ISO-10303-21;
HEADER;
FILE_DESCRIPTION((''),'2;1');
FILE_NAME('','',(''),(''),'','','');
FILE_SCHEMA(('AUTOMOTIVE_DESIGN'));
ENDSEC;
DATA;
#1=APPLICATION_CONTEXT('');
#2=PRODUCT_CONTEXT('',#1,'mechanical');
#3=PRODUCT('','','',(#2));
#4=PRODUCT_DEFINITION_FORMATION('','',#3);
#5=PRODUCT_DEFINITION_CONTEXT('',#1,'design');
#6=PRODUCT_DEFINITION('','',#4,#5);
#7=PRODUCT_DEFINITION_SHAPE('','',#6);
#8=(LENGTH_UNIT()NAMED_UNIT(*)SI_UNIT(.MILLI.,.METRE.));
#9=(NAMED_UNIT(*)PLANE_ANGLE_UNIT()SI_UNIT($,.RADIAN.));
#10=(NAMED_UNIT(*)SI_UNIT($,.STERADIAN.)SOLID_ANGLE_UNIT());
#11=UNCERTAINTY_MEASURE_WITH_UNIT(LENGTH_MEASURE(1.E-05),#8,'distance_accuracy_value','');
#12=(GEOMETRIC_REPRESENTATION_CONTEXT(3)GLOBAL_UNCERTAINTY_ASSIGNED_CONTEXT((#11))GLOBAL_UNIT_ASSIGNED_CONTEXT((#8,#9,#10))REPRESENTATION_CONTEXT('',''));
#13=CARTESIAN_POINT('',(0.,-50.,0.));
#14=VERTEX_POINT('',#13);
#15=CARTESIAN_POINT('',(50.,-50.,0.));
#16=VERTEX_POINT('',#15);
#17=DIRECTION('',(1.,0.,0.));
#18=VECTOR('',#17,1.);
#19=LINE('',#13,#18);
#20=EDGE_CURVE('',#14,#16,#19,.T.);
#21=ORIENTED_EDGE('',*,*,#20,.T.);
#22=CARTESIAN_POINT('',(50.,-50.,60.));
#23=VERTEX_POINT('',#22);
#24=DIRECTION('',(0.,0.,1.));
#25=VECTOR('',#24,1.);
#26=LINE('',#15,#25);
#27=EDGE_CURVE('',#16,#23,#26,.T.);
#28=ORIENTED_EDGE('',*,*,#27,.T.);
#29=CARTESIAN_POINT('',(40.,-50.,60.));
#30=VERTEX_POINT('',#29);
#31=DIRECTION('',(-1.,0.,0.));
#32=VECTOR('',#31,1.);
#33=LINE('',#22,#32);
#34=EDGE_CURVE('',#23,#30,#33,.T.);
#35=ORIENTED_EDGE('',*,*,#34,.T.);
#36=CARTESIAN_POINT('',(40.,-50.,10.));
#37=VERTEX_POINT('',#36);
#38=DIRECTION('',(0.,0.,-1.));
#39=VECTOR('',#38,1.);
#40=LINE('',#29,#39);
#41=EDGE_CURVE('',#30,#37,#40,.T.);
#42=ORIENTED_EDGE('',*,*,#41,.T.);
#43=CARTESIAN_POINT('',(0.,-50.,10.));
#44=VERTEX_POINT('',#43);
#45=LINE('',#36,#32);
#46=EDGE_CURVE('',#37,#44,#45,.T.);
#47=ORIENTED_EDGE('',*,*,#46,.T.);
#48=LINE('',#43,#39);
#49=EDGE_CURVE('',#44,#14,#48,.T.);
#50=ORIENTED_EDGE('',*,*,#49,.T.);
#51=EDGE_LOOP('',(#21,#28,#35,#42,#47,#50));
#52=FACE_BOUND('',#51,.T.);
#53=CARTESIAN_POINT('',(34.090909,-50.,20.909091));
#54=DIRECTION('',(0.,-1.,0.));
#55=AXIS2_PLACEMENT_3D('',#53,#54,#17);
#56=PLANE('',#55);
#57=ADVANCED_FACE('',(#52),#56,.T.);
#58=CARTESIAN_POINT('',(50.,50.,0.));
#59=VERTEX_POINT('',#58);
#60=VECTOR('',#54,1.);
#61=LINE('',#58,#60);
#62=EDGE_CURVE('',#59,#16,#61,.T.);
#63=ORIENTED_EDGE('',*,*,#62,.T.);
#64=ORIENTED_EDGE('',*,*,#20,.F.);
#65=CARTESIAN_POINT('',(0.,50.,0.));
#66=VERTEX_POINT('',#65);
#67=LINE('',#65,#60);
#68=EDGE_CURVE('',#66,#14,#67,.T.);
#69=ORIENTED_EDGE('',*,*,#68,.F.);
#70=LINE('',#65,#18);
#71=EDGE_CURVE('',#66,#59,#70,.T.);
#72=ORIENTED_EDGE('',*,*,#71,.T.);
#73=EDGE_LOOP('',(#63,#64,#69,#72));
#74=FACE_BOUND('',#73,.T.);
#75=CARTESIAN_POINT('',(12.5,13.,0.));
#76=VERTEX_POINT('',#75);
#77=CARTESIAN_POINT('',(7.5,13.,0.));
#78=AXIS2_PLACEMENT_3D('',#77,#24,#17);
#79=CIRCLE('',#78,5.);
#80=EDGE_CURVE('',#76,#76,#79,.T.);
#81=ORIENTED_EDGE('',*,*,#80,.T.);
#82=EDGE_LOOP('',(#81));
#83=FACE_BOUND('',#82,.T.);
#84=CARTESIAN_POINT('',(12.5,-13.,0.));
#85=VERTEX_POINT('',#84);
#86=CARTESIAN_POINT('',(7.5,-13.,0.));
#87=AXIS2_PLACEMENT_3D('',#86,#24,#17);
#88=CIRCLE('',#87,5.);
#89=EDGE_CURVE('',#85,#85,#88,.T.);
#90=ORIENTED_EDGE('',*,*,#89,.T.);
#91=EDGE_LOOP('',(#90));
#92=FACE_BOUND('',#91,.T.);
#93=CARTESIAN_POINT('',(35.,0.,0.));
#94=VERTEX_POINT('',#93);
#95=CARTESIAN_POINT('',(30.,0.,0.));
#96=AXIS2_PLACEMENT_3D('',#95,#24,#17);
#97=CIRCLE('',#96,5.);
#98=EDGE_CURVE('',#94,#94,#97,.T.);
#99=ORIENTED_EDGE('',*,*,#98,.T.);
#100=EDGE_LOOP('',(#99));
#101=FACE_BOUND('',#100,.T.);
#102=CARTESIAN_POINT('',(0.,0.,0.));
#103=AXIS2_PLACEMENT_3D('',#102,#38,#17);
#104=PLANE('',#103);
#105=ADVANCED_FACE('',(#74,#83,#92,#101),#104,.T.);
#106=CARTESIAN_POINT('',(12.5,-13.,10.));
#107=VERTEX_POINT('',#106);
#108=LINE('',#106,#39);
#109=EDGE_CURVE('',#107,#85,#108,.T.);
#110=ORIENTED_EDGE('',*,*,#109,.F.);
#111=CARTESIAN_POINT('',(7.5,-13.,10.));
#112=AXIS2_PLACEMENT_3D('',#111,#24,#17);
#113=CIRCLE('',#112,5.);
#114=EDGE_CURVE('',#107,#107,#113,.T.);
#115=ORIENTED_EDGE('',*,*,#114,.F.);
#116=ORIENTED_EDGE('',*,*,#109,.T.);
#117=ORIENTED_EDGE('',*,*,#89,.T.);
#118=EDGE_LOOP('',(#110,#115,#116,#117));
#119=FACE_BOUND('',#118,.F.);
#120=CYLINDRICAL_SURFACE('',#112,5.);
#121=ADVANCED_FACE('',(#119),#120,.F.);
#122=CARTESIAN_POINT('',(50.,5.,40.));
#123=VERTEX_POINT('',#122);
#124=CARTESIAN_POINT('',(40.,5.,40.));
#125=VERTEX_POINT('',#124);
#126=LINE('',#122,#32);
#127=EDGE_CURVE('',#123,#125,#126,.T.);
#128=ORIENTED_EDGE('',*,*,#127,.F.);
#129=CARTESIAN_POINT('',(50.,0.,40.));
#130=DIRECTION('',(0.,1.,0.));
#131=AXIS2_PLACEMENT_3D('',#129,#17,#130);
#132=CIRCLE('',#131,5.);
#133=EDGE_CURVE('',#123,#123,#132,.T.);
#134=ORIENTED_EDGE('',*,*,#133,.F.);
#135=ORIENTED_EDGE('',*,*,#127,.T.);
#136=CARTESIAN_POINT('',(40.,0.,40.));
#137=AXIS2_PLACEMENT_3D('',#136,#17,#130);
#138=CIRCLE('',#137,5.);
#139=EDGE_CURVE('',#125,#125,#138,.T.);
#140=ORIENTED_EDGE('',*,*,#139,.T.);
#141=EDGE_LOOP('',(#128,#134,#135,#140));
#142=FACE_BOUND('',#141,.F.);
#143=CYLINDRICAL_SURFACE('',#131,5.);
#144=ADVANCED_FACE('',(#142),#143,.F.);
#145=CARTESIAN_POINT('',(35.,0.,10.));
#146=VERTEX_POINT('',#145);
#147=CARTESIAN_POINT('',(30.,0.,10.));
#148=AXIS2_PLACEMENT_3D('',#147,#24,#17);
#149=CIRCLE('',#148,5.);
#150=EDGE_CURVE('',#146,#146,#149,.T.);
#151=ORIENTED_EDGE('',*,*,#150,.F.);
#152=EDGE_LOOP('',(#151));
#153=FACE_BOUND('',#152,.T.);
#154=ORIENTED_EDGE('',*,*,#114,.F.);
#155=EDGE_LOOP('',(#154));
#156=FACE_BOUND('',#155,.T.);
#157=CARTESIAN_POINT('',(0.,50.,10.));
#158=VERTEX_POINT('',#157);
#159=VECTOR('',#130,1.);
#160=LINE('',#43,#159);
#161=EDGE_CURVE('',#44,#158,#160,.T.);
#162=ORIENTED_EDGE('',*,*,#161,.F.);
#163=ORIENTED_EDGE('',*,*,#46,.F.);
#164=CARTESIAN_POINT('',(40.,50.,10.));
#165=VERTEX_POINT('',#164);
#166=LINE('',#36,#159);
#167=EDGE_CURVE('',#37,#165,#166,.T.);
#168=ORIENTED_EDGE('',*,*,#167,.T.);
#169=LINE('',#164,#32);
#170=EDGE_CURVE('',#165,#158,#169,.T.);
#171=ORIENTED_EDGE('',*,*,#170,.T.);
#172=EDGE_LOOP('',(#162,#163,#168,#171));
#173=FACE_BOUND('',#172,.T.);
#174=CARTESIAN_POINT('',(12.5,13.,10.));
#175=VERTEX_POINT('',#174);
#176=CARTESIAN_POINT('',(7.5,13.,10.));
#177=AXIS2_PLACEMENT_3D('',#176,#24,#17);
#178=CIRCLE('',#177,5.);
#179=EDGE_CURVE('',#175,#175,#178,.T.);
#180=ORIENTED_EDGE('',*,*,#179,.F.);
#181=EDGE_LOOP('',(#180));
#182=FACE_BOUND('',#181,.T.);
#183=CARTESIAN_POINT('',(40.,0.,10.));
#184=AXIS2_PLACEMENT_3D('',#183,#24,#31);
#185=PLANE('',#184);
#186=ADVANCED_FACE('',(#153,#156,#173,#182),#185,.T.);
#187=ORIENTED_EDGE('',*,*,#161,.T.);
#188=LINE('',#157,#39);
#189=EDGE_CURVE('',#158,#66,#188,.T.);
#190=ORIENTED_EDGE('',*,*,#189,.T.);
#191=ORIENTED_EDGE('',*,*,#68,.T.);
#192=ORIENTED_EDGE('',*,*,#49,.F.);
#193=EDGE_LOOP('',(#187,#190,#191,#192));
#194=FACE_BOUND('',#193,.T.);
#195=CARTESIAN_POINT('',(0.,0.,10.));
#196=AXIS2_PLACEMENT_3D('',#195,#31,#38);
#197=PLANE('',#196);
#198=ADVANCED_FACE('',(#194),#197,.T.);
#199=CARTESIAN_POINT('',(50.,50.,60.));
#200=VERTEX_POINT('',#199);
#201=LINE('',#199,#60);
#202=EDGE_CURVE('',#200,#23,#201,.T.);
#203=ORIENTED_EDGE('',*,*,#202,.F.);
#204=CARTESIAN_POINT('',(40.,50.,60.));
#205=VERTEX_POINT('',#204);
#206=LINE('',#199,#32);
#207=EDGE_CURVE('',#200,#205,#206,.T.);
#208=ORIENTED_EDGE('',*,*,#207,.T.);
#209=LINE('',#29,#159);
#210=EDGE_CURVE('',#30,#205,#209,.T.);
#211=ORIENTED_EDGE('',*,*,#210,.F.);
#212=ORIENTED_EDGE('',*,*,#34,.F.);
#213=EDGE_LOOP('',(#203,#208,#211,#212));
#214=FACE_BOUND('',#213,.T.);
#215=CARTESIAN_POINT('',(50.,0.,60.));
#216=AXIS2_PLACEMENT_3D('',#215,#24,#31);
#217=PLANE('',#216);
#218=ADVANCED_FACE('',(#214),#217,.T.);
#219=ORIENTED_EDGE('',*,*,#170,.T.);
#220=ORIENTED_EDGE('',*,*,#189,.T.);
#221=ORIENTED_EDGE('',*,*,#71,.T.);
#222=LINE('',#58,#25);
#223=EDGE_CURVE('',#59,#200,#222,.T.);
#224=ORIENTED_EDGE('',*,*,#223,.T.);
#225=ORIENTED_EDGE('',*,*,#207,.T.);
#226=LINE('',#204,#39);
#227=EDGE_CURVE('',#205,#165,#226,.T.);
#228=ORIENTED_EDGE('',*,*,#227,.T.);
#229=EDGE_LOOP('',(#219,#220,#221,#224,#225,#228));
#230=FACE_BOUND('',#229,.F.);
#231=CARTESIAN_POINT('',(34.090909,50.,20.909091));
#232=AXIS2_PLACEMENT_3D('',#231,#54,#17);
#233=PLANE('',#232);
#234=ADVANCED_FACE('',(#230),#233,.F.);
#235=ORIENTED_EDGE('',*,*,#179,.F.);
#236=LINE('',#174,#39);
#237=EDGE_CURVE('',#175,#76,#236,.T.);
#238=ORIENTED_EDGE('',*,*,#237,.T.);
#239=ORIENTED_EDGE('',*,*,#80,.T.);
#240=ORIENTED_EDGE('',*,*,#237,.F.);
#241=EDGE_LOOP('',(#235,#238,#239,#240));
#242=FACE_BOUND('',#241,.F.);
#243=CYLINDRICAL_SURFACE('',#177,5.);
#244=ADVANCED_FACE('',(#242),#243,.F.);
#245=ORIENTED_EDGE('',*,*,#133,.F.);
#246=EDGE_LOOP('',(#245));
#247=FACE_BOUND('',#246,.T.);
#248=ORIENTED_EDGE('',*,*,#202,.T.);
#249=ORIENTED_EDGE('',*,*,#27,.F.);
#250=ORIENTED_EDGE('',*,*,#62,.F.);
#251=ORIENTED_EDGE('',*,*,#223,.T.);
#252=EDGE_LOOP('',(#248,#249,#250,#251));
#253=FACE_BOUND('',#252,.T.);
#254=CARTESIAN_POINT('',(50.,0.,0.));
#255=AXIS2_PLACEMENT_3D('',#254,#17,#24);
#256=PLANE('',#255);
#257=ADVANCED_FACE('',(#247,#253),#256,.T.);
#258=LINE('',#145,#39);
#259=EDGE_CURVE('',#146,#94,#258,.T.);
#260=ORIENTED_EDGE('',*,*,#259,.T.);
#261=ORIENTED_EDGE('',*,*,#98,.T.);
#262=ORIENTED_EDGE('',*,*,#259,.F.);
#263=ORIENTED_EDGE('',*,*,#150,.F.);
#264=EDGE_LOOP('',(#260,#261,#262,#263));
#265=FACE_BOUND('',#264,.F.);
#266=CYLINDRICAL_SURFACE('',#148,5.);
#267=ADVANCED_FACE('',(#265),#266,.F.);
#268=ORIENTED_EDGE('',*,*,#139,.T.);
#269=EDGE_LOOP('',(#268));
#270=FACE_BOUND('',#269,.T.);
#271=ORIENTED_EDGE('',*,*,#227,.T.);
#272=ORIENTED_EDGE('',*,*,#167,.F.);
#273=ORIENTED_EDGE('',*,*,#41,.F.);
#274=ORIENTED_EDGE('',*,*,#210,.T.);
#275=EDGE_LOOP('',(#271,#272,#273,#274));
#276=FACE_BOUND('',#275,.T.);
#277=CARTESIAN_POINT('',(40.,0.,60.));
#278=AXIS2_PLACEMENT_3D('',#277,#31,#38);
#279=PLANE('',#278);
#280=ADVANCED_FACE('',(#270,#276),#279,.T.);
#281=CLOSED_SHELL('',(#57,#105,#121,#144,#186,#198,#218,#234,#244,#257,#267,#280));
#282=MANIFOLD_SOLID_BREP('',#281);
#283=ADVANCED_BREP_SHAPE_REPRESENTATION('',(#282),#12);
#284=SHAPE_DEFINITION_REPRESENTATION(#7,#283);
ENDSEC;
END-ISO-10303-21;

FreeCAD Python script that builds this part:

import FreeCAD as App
import Part
import Sketcher
Q = App.Units.Quantity

doc = App.newDocument("Part")
body = doc.addObject("PartDesign::Body", "Body")

# Sketch on XZ plane
sketch1 = body.newObject("Sketcher::SketchObject", "Sketch")
sketch1.AttachmentSupport = (doc.getObject("XZ_Plane"), [""])
sketch1.MapMode = "FlatFace"
sketch1.addGeometry(Part.LineSegment(App.Vector(0, 10, 0), App.Vector(0, 0, 0)), False)
sketch1.addGeometry(Part.LineSegment(App.Vector(0, 0, 0), App.Vector(50, 0, 0)), False)
sketch1.addGeometry(Part.LineSegment(App.Vector(50, 0, 0), App.Vector(50, 60, 0)), False)
sketch1.addGeometry(Part.LineSegment(App.Vector(50, 60, 0), App.Vector(40, 60, 0)), False)
sketch1.addGeometry(Part.LineSegment(App.Vector(40, 60, 0), App.Vector(40, 10, 0)), False)
sketch1.addGeometry(Part.LineSegment(App.Vector(40, 10, 0), App.Vector(0, 10, 0)), False)
sketch1.addConstraint(Sketcher.Constraint("Coincident", 0, 2, 1, 1))
sketch1.addConstraint(Sketcher.Constraint("Coincident", 1, 2, 2, 1))
sketch1.addConstraint(Sketcher.Constraint("Coincident", 2, 2, 3, 1))
sketch1.addConstraint(Sketcher.Constraint("Coincident", 3, 2, 4, 1))
sketch1.addConstraint(Sketcher.Constraint("Coincident", 4, 2, 5, 1))
sketch1.addConstraint(Sketcher.Constraint("Coincident", 5, 2, 0, 1))
sketch1.addConstraint(Sketcher.Constraint("Vertical", 0))
sketch1.addConstraint(Sketcher.Constraint("Horizontal", 1))
sketch1.addConstraint(Sketcher.Constraint("Vertical", 2))
sketch1.addConstraint(Sketcher.Constraint("Horizontal", 3))
sketch1.addConstraint(Sketcher.Constraint("Vertical", 4))
sketch1.addConstraint(Sketcher.Constraint("Horizontal", 5))
sketch1.addConstraint(Sketcher.Constraint("Coincident", 0, 2, -1, 1))
sketch1.addConstraint(Sketcher.Constraint("Equal", 3, 0))
sketch1.addConstraint(Sketcher.Constraint("Equal", 1, 4))
sketch1.addConstraint(Sketcher.Constraint("DistanceX", 1, 1, 1, 2, Q("50 mm")))
sketch1.addConstraint(Sketcher.Constraint("DistanceX", 3, 2, 3, 1, Q("10 mm")))
pad1 = body.newObject("PartDesign::Pad", "Pad")
pad1.Profile = sketch1
pad1.Length = 100
pad1.Midplane = True

# Sketch on YZ plane
sketch2 = body.newObject("Sketcher::SketchObject", "Sketch001")
sketch2.AttachmentSupport = (doc.getObject("YZ_Plane"), [""])
sketch2.MapMode = "FlatFace"
sketch2.AttachmentOffset = App.Placement(App.Vector(0, 0, 50), App.Rotation())
sketch2.addGeometry(Part.Circle(App.Vector(0, 40, 0), App.Vector(0, 0, 1), 5), False)
sketch2.addConstraint(Sketcher.Constraint("PointOnObject", 0, 3, -2))
sketch2.addConstraint(Sketcher.Constraint("Diameter", 0, Q("10 mm")))
sketch2.addConstraint(Sketcher.Constraint("DistanceY", -1, 1, 0, 3, Q("40 mm")))
pocket1 = body.newObject("PartDesign::Pocket", "Pocket")
pocket1.Profile = sketch2
pocket1.Type = "ThroughAll"

# Sketch on XY plane
sketch3 = body.newObject("Sketcher::SketchObject", "Sketch002")
sketch3.AttachmentSupport = (doc.getObject("XY_Plane"), [""])
sketch3.MapMode = "FlatFace"
sketch3.AttachmentOffset = App.Placement(App.Vector(0, 0, 10), App.Rotation())
sketch3.addGeometry(Part.Circle(App.Vector(30, 0, 0), App.Vector(0, 0, 1), 5), False)
sketch3.addGeometry(Part.Circle(App.Vector(8, 13, 0), App.Vector(0, 0, 1), 5), False)
sketch3.addGeometry(Part.Circle(App.Vector(8, -13, 0), App.Vector(0, 0, 1), 5), False)
sketch3.addConstraint(Sketcher.Constraint("Equal", 0, 1))
sketch3.addConstraint(Sketcher.Constraint("Equal", 1, 2))
sketch3.addConstraint(Sketcher.Constraint("Symmetric", 1, 3, 2, 3, -1))
sketch3.addConstraint(Sketcher.Constraint("PointOnObject", 0, 3, -1))
sketch3.addConstraint(Sketcher.Constraint("Diameter", 0, Q("10 mm")))
sketch3.addConstraint(Sketcher.Constraint("DistanceX", -1, 1, 0, 3, Q("30 mm")))
sketch3.addConstraint(Sketcher.Constraint("DistanceY", -1, 1, 1, 3, Q("13 mm")))
sketch3.addConstraint(Sketcher.Constraint("DistanceX", -1, 1, 1, 3, Q("7.5 mm")))
pocket2 = body.newObject("PartDesign::Pocket", "Pocket001")
pocket2.Profile = sketch3
pocket2.Type = "ThroughAll"

doc.recompute()
